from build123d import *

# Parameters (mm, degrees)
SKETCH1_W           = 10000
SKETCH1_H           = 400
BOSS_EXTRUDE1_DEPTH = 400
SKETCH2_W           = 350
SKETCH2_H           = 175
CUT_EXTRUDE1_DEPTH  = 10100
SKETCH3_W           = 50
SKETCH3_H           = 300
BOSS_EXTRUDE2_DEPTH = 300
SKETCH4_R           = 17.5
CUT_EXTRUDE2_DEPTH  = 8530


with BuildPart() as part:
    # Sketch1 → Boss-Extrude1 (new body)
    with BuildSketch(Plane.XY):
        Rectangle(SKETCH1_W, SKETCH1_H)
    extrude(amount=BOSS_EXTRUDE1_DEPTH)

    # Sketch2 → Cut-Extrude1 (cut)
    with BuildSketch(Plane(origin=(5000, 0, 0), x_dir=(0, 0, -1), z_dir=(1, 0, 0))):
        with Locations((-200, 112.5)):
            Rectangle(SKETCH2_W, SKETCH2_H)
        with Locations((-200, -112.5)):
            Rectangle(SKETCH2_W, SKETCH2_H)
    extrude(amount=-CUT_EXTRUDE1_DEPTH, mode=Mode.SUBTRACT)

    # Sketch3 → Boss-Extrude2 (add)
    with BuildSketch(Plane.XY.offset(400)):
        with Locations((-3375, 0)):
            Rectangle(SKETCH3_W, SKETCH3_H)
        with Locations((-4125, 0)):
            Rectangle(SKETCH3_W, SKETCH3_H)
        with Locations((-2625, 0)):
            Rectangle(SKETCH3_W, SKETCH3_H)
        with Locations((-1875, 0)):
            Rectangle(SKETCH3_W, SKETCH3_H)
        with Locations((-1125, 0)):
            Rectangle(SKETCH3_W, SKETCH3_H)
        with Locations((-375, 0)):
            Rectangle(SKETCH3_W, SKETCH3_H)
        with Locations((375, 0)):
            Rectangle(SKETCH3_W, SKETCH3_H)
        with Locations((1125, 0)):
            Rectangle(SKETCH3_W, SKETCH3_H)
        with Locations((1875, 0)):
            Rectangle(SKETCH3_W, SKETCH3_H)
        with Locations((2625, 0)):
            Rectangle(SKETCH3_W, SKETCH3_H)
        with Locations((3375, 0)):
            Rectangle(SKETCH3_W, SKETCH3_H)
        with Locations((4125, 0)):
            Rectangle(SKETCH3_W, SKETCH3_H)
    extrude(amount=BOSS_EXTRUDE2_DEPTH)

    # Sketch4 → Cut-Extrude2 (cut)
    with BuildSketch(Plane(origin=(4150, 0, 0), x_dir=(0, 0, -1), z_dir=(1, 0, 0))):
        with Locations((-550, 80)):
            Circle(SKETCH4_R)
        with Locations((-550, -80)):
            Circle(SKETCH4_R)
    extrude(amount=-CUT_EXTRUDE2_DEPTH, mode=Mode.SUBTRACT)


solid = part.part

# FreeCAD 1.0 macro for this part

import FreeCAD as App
import Part
import Sketcher
from FreeCAD import Vector
Q = App.Units.Quantity

doc = App.newDocument("Part")
body = doc.addObject("PartDesign::Body", "Body")

sketch1 = doc.addObject("Sketcher::SketchObject", "Sketch")
body.addObject(sketch1)
sketch1.AttachmentSupport = (doc.XY_Plane, [""])
sketch1.MapMode = "FlatFace"
sketch1.addGeometry([
    Part.LineSegment(Vector(-5000, 200, 0), Vector(-5000, -200, 0)),
    Part.LineSegment(Vector(-5000, -200, 0), Vector(5000, -200, 0)),
    Part.LineSegment(Vector(5000, -200, 0), Vector(5000, 200, 0)),
    Part.LineSegment(Vector(5000, 200, 0), Vector(-5000, 200, 0)),
], False)
sketch1.addConstraint([
    Sketcher.Constraint("Coincident", 0, 2, 1, 1),
    Sketcher.Constraint("Coincident", 1, 2, 2, 1),
    Sketcher.Constraint("Coincident", 2, 2, 3, 1),
    Sketcher.Constraint("Coincident", 3, 2, 0, 1),
    Sketcher.Constraint("Vertical", 0),
    Sketcher.Constraint("Horizontal", 1),
    Sketcher.Constraint("Vertical", 2),
    Sketcher.Constraint("Horizontal", 3),
    Sketcher.Constraint("Symmetric", 0, 2, 2, 2, -1, 1),
    Sketcher.Constraint("DistanceX", 1, 1, 1, 2, Q("10000 mm")),
    Sketcher.Constraint("DistanceY", 0, 2, 0, 1, Q("400 mm")),
])
pad1 = doc.addObject("PartDesign::Pad", "Pad")
body.addObject(pad1)
pad1.Profile = sketch1
pad1.Length = 400

sketch2 = doc.addObject("Sketcher::SketchObject", "Sketch001")
body.addObject(sketch2)
sketch2.AttachmentSupport = (doc.YZ_Plane, [""])
sketch2.MapMode = "FlatFace"
sketch2.AttachmentOffset = App.Placement(Vector(0, 0, 5000), App.Rotation())
sketch2.addGeometry([
    Part.LineSegment(Vector(200, 375, 0), Vector(25, 375, 0)),
    Part.LineSegment(Vector(25, 375, 0), Vector(25, 25, 0)),
    Part.LineSegment(Vector(25, 25, 0), Vector(200, 25, 0)),
    Part.LineSegment(Vector(200, 25, 0), Vector(200, 375, 0)),
    Part.LineSegment(Vector(-25, 375, 0), Vector(-200, 375, 0)),
    Part.LineSegment(Vector(-200, 375, 0), Vector(-200, 25, 0)),
    Part.LineSegment(Vector(-200, 25, 0), Vector(-25, 25, 0)),
    Part.LineSegment(Vector(-25, 25, 0), Vector(-25, 375, 0)),
], False)
sketch2.addConstraint([
    Sketcher.Constraint("Coincident", 0, 2, 1, 1),
    Sketcher.Constraint("Coincident", 1, 2, 2, 1),
    Sketcher.Constraint("Coincident", 2, 2, 3, 1),
    Sketcher.Constraint("Coincident", 3, 2, 0, 1),
    Sketcher.Constraint("Coincident", 4, 2, 5, 1),
    Sketcher.Constraint("Coincident", 5, 2, 6, 1),
    Sketcher.Constraint("Coincident", 6, 2, 7, 1),
    Sketcher.Constraint("Coincident", 7, 2, 4, 1),
    Sketcher.Constraint("Horizontal", 0),
    Sketcher.Constraint("Vertical", 1),
    Sketcher.Constraint("Horizontal", 2),
    Sketcher.Constraint("Vertical", 3),
    Sketcher.Constraint("Horizontal", 4),
    Sketcher.Constraint("Vertical", 5),
    Sketcher.Constraint("Horizontal", 6),
    Sketcher.Constraint("Vertical", 7),
    Sketcher.Constraint("Symmetric", 3, 2, 4, 2, -2),
    Sketcher.Constraint("Symmetric", 1, 2, 6, 2, -2),
    Sketcher.Constraint("DistanceX", 0, 2, 0, 1, Q("175 mm")),
    Sketcher.Constraint("DistanceY", 1, 2, 1, 1, Q("350 mm")),
    Sketcher.Constraint("DistanceX", -1, 1, 0, 2, Q("25 mm")),
    Sketcher.Constraint("DistanceY", -1, 1, 0, 2, Q("375 mm")),
])
pocket1 = doc.addObject("PartDesign::Pocket", "Pocket")
body.addObject(pocket1)
pocket1.Profile = sketch2
pocket1.Length = 10100

sketch3 = doc.addObject("Sketcher::SketchObject", "Sketch002")
body.addObject(sketch3)
sketch3.AttachmentSupport = (doc.XY_Plane, [""])
sketch3.MapMode = "FlatFace"
sketch3.AttachmentOffset = App.Placement(Vector(0, 0, 400), App.Rotation())
sketch3.addGeometry([
    Part.LineSegment(Vector(-3400, 150, 0), Vector(-3400, -150, 0)),
    Part.LineSegment(Vector(-3400, -150, 0), Vector(-3350, -150, 0)),
    Part.LineSegment(Vector(-3350, -150, 0), Vector(-3350, 150, 0)),
    Part.LineSegment(Vector(-3350, 150, 0), Vector(-3400, 150, 0)),
    Part.LineSegment(Vector(-4150, 150, 0), Vector(-4150, -150, 0)),
    Part.LineSegment(Vector(-4150, -150, 0), Vector(-4100, -150, 0)),
    Part.LineSegment(Vector(-4100, -150, 0), Vector(-4100, 150, 0)),
    Part.LineSegment(Vector(-4100, 150, 0), Vector(-4150, 150, 0)),
    Part.LineSegment(Vector(-2650, 150, 0), Vector(-2650, -150, 0)),
    Part.LineSegment(Vector(-2650, -150, 0), Vector(-2600, -150, 0)),
    Part.LineSegment(Vector(-2600, -150, 0), Vector(-2600, 150, 0)),
    Part.LineSegment(Vector(-2600, 150, 0), Vector(-2650, 150, 0)),
    Part.LineSegment(Vector(-1900, 150, 0), Vector(-1900, -150, 0)),
    Part.LineSegment(Vector(-1900, -150, 0), Vector(-1850, -150, 0)),
    Part.LineSegment(Vector(-1850, -150, 0), Vector(-1850, 150, 0)),
    Part.LineSegment(Vector(-1850, 150, 0), Vector(-1900, 150, 0)),
    Part.LineSegment(Vector(-1150, 150, 0), Vector(-1150, -150, 0)),
    Part.LineSegment(Vector(-1150, -150, 0), Vector(-1100, -150, 0)),
    Part.LineSegment(Vector(-1100, -150, 0), Vector(-1100, 150, 0)),
    Part.LineSegment(Vector(-1100, 150, 0), Vector(-1150, 150, 0)),
    Part.LineSegment(Vector(-400, 150, 0), Vector(-400, -150, 0)),
    Part.LineSegment(Vector(-400, -150, 0), Vector(-350, -150, 0)),
    Part.LineSegment(Vector(-350, -150, 0), Vector(-350, 150, 0)),
    Part.LineSegment(Vector(-350, 150, 0), Vector(-400, 150, 0)),
    Part.LineSegment(Vector(350, 150, 0), Vector(350, -150, 0)),
    Part.LineSegment(Vector(350, -150, 0), Vector(400, -150, 0)),
    Part.LineSegment(Vector(400, -150, 0), Vector(400, 150, 0)),
    Part.LineSegment(Vector(400, 150, 0), Vector(350, 150, 0)),
    Part.LineSegment(Vector(1100, 150, 0), Vector(1100, -150, 0)),
    Part.LineSegment(Vector(1100, -150, 0), Vector(1150, -150, 0)),
    Part.LineSegment(Vector(1150, -150, 0), Vector(1150, 150, 0)),
    Part.LineSegment(Vector(1150, 150, 0), Vector(1100, 150, 0)),
    Part.LineSegment(Vector(1850, 150, 0), Vector(1850, -150, 0)),
    Part.LineSegment(Vector(1850, -150, 0), Vector(1900, -150, 0)),
    Part.LineSegment(Vector(1900, -150, 0), Vector(1900, 150, 0)),
    Part.LineSegment(Vector(1900, 150, 0), Vector(1850, 150, 0)),
    Part.LineSegment(Vector(2600, 150, 0), Vector(2600, -150, 0)),
    Part.LineSegment(Vector(2600, -150, 0), Vector(2650, -150, 0)),
    Part.LineSegment(Vector(2650, -150, 0), Vector(2650, 150, 0)),
    Part.LineSegment(Vector(2650, 150, 0), Vector(2600, 150, 0)),
    Part.LineSegment(Vector(3350, 150, 0), Vector(3350, -150, 0)),
    Part.LineSegment(Vector(3350, -150, 0), Vector(3400, -150, 0)),
    Part.LineSegment(Vector(3400, -150, 0), Vector(3400, 150, 0)),
    Part.LineSegment(Vector(3400, 150, 0), Vector(3350, 150, 0)),
    Part.LineSegment(Vector(4100, 150, 0), Vector(4100, -150, 0)),
    Part.LineSegment(Vector(4100, -150, 0), Vector(4150, -150, 0)),
    Part.LineSegment(Vector(4150, -150, 0), Vector(4150, 150, 0)),
    Part.LineSegment(Vector(4150, 150, 0), Vector(4100, 150, 0)),
], False)
sketch3.addConstraint([
    Sketcher.Constraint("Coincident", 0, 2, 1, 1),
    Sketcher.Constraint("Coincident", 1, 2, 2, 1),
    Sketcher.Constraint("Coincident", 2, 2, 3, 1),
    Sketcher.Constraint("Coincident", 3, 2, 0, 1),
    Sketcher.Constraint("Coincident", 4, 2, 5, 1),
    Sketcher.Constraint("Coincident", 5, 2, 6, 1),
    Sketcher.Constraint("Coincident", 6, 2, 7, 1),
    Sketcher.Constraint("Coincident", 7, 2, 4, 1),
    Sketcher.Constraint("Coincident", 8, 2, 9, 1),
    Sketcher.Constraint("Coincident", 9, 2, 10, 1),
    Sketcher.Constraint("Coincident", 10, 2, 11, 1),
    Sketcher.Constraint("Coincident", 11, 2, 8, 1),
    Sketcher.Constraint("Coincident", 12, 2, 13, 1),
    Sketcher.Constraint("Coincident", 13, 2, 14, 1),
    Sketcher.Constraint("Coincident", 14, 2, 15, 1),
    Sketcher.Constraint("Coincident", 15, 2, 12, 1),
    Sketcher.Constraint("Coincident", 16, 2, 17, 1),
    Sketcher.Constraint("Coincident", 17, 2, 18, 1),
    Sketcher.Constraint("Coincident", 18, 2, 19, 1),
    Sketcher.Constraint("Coincident", 19, 2, 16, 1),
    Sketcher.Constraint("Coincident", 20, 2, 21, 1),
    Sketcher.Constraint("Coincident", 21, 2, 22, 1),
    Sketcher.Constraint("Coincident", 22, 2, 23, 1),
    Sketcher.Constraint("Coincident", 23, 2, 20, 1),
    Sketcher.Constraint("Coincident", 24, 2, 25, 1),
    Sketcher.Constraint("Coincident", 25, 2, 26, 1),
    Sketcher.Constraint("Coincident", 26, 2, 27, 1),
    Sketcher.Constraint("Coincident", 27, 2, 24, 1),
    Sketcher.Constraint("Coincident", 28, 2, 29, 1),
    Sketcher.Constraint("Coincident", 29, 2, 30, 1),
    Sketcher.Constraint("Coincident", 30, 2, 31, 1),
    Sketcher.Constraint("Coincident", 31, 2, 28, 1),
    Sketcher.Constraint("Coincident", 32, 2, 33, 1),
    Sketcher.Constraint("Coincident", 33, 2, 34, 1),
    Sketcher.Constraint("Coincident", 34, 2, 35, 1),
    Sketcher.Constraint("Coincident", 35, 2, 32, 1),
    Sketcher.Constraint("Coincident", 36, 2, 37, 1),
    Sketcher.Constraint("Coincident", 37, 2, 38, 1),
    Sketcher.Constraint("Coincident", 38, 2, 39, 1),
    Sketcher.Constraint("Coincident", 39, 2, 36, 1),
    Sketcher.Constraint("Coincident", 40, 2, 41, 1),
    Sketcher.Constraint("Coincident", 41, 2, 42, 1),
    Sketcher.Constraint("Coincident", 42, 2, 43, 1),
    Sketcher.Constraint("Coincident", 43, 2, 40, 1),
    Sketcher.Constraint("Coincident", 44, 2, 45, 1),
    Sketcher.Constraint("Coincident", 45, 2, 46, 1),
    Sketcher.Constraint("Coincident", 46, 2, 47, 1),
    Sketcher.Constraint("Coincident", 47, 2, 44, 1),
    Sketcher.Constraint("Vertical", 0),
    Sketcher.Constraint("Horizontal", 1),
    Sketcher.Constraint("Vertical", 2),
    Sketcher.Constraint("Horizontal", 3),
    Sketcher.Constraint("Vertical", 4),
    Sketcher.Constraint("Horizontal", 5),
    Sketcher.Constraint("Vertical", 6),
    Sketcher.Constraint("Horizontal", 7),
    Sketcher.Constraint("Vertical", 8),
    Sketcher.Constraint("Horizontal", 9),
    Sketcher.Constraint("Vertical", 10),
    Sketcher.Constraint("Horizontal", 11),
    Sketcher.Constraint("Vertical", 12),
    Sketcher.Constraint("Horizontal", 13),
    Sketcher.Constraint("Vertical", 14),
    Sketcher.Constraint("Horizontal", 15),
    Sketcher.Constraint("Vertical", 16),
    Sketcher.Constraint("Horizontal", 17),
    Sketcher.Constraint("Vertical", 18),
    Sketcher.Constraint("Horizontal", 19),
    Sketcher.Constraint("Vertical", 20),
    Sketcher.Constraint("Horizontal", 21),
    Sketcher.Constraint("Vertical", 22),
    Sketcher.Constraint("Horizontal", 23),
    Sketcher.Constraint("Vertical", 24),
    Sketcher.Constraint("Horizontal", 25),
    Sketcher.Constraint("Vertical", 26),
    Sketcher.Constraint("Horizontal", 27),
    Sketcher.Constraint("Vertical", 28),
    Sketcher.Constraint("Horizontal", 29),
    Sketcher.Constraint("Vertical", 30),
    Sketcher.Constraint("Horizontal", 31),
    Sketcher.Constraint("Vertical", 32),
    Sketcher.Constraint("Horizontal", 33),
    Sketcher.Constraint("Vertical", 34),
    Sketcher.Constraint("Horizontal", 35),
    Sketcher.Constraint("Vertical", 36),
    Sketcher.Constraint("Horizontal", 37),
    Sketcher.Constraint("Vertical", 38),
    Sketcher.Constraint("Horizontal", 39),
    Sketcher.Constraint("Vertical", 40),
    Sketcher.Constraint("Horizontal", 41),
    Sketcher.Constraint("Vertical", 42),
    Sketcher.Constraint("Horizontal", 43),
    Sketcher.Constraint("Vertical", 44),
    Sketcher.Constraint("Horizontal", 45),
    Sketcher.Constraint("Vertical", 46),
    Sketcher.Constraint("Horizontal", 47),
    Sketcher.Constraint("Symmetric", 22, 2, 24, 2, -1, 1),
    Sketcher.Constraint("Symmetric", 20, 2, 26, 2, -1, 1),
    Sketcher.Constraint("Symmetric", 18, 2, 28, 2, -1, 1),
    Sketcher.Constraint("Symmetric", 16, 2, 30, 2, -1, 1),
    Sketcher.Constraint("Symmetric", 14, 2, 32, 2, -1, 1),
    Sketcher.Constraint("Symmetric", 12, 2, 34, 2, -1, 1),
    Sketcher.Constraint("Symmetric", 10, 2, 36, 2, -1, 1),
    Sketcher.Constraint("Symmetric", 8, 2, 38, 2, -1, 1),
    Sketcher.Constraint("Symmetric", 2, 2, 40, 2, -1, 1),
    Sketcher.Constraint("Symmetric", 0, 2, 42, 2, -1, 1),
    Sketcher.Constraint("Symmetric", 6, 2, 44, 2, -1, 1),
    Sketcher.Constraint("Symmetric", 4, 2, 46, 2, -1, 1),
    Sketcher.Constraint("Horizontal", 1, 2, 4, 2),
    Sketcher.Constraint("Horizontal", 3, 2, 6, 2),
    Sketcher.Constraint("Horizontal", 5, 2, 8, 2),
    Sketcher.Constraint("Horizontal", 7, 2, 10, 2),
    Sketcher.Constraint("Horizontal", 9, 2, 12, 2),
    Sketcher.Constraint("Horizontal", 11, 2, 14, 2),
    Sketcher.Constraint("Horizontal", 13, 2, 16, 2),
    Sketcher.Constraint("Horizontal", 15, 2, 18, 2),
    Sketcher.Constraint("Horizontal", 17, 2, 20, 2),
    Sketcher.Constraint("Horizontal", 19, 2, 22, 2),
    Sketcher.Constraint("Horizontal", 21, 2, 24, 2),
    Sketcher.Constraint("Equal", 3, 5),
    Sketcher.Constraint("Equal", 7, 9),
    Sketcher.Constraint("Equal", 11, 13),
    Sketcher.Constraint("Equal", 15, 17),
    Sketcher.Constraint("Equal", 19, 21),
    Sketcher.Constraint("DistanceX", 1, 1, 1, 2, Q("50 mm")),
    Sketcher.Constraint("DistanceY", 0, 2, 0, 1, Q("300 mm")),
    Sketcher.Constraint("DistanceX", 0, 2, -1, 1, Q("3400 mm")),
    Sketcher.Constraint("DistanceX", 4, 2, -1, 1, Q("4150 mm")),
    Sketcher.Constraint("DistanceX", 8, 2, -1, 1, Q("2650 mm")),
    Sketcher.Constraint("DistanceX", 12, 2, -1, 1, Q("1900 mm")),
    Sketcher.Constraint("DistanceX", 16, 2, -1, 1, Q("1150 mm")),
    Sketcher.Constraint("DistanceX", 20, 2, -1, 1, Q("400 mm")),
])
pad2 = doc.addObject("PartDesign::Pad", "Pad001")
body.addObject(pad2)
pad2.Profile = sketch3
pad2.Length = 300

sketch4 = doc.addObject("Sketcher::SketchObject", "Sketch003")
body.addObject(sketch4)
sketch4.AttachmentSupport = (doc.YZ_Plane, [""])
sketch4.MapMode = "FlatFace"
sketch4.AttachmentOffset = App.Placement(Vector(0, 0, 4150), App.Rotation())
sketch4.addGeometry([
    Part.Circle(Vector(80, 550, 0), Vector(0, 0, 1), 18),
    Part.Circle(Vector(-80, 550, 0), Vector(0, 0, 1), 18),
], False)
sketch4.addConstraint([
    Sketcher.Constraint("Equal", 0, 1),
    Sketcher.Constraint("Symmetric", 0, 3, 1, 3, -2),
    Sketcher.Constraint("Diameter", 0, Q("35 mm")),
    Sketcher.Constraint("DistanceX", -1, 1, 0, 3, Q("80 mm")),
    Sketcher.Constraint("DistanceY", -1, 1, 0, 3, Q("550 mm")),
])
pocket2 = doc.addObject("PartDesign::Pocket", "Pocket001")
body.addObject(pocket2)
pocket2.Profile = sketch4
pocket2.Length = 8530

doc.recompute()
